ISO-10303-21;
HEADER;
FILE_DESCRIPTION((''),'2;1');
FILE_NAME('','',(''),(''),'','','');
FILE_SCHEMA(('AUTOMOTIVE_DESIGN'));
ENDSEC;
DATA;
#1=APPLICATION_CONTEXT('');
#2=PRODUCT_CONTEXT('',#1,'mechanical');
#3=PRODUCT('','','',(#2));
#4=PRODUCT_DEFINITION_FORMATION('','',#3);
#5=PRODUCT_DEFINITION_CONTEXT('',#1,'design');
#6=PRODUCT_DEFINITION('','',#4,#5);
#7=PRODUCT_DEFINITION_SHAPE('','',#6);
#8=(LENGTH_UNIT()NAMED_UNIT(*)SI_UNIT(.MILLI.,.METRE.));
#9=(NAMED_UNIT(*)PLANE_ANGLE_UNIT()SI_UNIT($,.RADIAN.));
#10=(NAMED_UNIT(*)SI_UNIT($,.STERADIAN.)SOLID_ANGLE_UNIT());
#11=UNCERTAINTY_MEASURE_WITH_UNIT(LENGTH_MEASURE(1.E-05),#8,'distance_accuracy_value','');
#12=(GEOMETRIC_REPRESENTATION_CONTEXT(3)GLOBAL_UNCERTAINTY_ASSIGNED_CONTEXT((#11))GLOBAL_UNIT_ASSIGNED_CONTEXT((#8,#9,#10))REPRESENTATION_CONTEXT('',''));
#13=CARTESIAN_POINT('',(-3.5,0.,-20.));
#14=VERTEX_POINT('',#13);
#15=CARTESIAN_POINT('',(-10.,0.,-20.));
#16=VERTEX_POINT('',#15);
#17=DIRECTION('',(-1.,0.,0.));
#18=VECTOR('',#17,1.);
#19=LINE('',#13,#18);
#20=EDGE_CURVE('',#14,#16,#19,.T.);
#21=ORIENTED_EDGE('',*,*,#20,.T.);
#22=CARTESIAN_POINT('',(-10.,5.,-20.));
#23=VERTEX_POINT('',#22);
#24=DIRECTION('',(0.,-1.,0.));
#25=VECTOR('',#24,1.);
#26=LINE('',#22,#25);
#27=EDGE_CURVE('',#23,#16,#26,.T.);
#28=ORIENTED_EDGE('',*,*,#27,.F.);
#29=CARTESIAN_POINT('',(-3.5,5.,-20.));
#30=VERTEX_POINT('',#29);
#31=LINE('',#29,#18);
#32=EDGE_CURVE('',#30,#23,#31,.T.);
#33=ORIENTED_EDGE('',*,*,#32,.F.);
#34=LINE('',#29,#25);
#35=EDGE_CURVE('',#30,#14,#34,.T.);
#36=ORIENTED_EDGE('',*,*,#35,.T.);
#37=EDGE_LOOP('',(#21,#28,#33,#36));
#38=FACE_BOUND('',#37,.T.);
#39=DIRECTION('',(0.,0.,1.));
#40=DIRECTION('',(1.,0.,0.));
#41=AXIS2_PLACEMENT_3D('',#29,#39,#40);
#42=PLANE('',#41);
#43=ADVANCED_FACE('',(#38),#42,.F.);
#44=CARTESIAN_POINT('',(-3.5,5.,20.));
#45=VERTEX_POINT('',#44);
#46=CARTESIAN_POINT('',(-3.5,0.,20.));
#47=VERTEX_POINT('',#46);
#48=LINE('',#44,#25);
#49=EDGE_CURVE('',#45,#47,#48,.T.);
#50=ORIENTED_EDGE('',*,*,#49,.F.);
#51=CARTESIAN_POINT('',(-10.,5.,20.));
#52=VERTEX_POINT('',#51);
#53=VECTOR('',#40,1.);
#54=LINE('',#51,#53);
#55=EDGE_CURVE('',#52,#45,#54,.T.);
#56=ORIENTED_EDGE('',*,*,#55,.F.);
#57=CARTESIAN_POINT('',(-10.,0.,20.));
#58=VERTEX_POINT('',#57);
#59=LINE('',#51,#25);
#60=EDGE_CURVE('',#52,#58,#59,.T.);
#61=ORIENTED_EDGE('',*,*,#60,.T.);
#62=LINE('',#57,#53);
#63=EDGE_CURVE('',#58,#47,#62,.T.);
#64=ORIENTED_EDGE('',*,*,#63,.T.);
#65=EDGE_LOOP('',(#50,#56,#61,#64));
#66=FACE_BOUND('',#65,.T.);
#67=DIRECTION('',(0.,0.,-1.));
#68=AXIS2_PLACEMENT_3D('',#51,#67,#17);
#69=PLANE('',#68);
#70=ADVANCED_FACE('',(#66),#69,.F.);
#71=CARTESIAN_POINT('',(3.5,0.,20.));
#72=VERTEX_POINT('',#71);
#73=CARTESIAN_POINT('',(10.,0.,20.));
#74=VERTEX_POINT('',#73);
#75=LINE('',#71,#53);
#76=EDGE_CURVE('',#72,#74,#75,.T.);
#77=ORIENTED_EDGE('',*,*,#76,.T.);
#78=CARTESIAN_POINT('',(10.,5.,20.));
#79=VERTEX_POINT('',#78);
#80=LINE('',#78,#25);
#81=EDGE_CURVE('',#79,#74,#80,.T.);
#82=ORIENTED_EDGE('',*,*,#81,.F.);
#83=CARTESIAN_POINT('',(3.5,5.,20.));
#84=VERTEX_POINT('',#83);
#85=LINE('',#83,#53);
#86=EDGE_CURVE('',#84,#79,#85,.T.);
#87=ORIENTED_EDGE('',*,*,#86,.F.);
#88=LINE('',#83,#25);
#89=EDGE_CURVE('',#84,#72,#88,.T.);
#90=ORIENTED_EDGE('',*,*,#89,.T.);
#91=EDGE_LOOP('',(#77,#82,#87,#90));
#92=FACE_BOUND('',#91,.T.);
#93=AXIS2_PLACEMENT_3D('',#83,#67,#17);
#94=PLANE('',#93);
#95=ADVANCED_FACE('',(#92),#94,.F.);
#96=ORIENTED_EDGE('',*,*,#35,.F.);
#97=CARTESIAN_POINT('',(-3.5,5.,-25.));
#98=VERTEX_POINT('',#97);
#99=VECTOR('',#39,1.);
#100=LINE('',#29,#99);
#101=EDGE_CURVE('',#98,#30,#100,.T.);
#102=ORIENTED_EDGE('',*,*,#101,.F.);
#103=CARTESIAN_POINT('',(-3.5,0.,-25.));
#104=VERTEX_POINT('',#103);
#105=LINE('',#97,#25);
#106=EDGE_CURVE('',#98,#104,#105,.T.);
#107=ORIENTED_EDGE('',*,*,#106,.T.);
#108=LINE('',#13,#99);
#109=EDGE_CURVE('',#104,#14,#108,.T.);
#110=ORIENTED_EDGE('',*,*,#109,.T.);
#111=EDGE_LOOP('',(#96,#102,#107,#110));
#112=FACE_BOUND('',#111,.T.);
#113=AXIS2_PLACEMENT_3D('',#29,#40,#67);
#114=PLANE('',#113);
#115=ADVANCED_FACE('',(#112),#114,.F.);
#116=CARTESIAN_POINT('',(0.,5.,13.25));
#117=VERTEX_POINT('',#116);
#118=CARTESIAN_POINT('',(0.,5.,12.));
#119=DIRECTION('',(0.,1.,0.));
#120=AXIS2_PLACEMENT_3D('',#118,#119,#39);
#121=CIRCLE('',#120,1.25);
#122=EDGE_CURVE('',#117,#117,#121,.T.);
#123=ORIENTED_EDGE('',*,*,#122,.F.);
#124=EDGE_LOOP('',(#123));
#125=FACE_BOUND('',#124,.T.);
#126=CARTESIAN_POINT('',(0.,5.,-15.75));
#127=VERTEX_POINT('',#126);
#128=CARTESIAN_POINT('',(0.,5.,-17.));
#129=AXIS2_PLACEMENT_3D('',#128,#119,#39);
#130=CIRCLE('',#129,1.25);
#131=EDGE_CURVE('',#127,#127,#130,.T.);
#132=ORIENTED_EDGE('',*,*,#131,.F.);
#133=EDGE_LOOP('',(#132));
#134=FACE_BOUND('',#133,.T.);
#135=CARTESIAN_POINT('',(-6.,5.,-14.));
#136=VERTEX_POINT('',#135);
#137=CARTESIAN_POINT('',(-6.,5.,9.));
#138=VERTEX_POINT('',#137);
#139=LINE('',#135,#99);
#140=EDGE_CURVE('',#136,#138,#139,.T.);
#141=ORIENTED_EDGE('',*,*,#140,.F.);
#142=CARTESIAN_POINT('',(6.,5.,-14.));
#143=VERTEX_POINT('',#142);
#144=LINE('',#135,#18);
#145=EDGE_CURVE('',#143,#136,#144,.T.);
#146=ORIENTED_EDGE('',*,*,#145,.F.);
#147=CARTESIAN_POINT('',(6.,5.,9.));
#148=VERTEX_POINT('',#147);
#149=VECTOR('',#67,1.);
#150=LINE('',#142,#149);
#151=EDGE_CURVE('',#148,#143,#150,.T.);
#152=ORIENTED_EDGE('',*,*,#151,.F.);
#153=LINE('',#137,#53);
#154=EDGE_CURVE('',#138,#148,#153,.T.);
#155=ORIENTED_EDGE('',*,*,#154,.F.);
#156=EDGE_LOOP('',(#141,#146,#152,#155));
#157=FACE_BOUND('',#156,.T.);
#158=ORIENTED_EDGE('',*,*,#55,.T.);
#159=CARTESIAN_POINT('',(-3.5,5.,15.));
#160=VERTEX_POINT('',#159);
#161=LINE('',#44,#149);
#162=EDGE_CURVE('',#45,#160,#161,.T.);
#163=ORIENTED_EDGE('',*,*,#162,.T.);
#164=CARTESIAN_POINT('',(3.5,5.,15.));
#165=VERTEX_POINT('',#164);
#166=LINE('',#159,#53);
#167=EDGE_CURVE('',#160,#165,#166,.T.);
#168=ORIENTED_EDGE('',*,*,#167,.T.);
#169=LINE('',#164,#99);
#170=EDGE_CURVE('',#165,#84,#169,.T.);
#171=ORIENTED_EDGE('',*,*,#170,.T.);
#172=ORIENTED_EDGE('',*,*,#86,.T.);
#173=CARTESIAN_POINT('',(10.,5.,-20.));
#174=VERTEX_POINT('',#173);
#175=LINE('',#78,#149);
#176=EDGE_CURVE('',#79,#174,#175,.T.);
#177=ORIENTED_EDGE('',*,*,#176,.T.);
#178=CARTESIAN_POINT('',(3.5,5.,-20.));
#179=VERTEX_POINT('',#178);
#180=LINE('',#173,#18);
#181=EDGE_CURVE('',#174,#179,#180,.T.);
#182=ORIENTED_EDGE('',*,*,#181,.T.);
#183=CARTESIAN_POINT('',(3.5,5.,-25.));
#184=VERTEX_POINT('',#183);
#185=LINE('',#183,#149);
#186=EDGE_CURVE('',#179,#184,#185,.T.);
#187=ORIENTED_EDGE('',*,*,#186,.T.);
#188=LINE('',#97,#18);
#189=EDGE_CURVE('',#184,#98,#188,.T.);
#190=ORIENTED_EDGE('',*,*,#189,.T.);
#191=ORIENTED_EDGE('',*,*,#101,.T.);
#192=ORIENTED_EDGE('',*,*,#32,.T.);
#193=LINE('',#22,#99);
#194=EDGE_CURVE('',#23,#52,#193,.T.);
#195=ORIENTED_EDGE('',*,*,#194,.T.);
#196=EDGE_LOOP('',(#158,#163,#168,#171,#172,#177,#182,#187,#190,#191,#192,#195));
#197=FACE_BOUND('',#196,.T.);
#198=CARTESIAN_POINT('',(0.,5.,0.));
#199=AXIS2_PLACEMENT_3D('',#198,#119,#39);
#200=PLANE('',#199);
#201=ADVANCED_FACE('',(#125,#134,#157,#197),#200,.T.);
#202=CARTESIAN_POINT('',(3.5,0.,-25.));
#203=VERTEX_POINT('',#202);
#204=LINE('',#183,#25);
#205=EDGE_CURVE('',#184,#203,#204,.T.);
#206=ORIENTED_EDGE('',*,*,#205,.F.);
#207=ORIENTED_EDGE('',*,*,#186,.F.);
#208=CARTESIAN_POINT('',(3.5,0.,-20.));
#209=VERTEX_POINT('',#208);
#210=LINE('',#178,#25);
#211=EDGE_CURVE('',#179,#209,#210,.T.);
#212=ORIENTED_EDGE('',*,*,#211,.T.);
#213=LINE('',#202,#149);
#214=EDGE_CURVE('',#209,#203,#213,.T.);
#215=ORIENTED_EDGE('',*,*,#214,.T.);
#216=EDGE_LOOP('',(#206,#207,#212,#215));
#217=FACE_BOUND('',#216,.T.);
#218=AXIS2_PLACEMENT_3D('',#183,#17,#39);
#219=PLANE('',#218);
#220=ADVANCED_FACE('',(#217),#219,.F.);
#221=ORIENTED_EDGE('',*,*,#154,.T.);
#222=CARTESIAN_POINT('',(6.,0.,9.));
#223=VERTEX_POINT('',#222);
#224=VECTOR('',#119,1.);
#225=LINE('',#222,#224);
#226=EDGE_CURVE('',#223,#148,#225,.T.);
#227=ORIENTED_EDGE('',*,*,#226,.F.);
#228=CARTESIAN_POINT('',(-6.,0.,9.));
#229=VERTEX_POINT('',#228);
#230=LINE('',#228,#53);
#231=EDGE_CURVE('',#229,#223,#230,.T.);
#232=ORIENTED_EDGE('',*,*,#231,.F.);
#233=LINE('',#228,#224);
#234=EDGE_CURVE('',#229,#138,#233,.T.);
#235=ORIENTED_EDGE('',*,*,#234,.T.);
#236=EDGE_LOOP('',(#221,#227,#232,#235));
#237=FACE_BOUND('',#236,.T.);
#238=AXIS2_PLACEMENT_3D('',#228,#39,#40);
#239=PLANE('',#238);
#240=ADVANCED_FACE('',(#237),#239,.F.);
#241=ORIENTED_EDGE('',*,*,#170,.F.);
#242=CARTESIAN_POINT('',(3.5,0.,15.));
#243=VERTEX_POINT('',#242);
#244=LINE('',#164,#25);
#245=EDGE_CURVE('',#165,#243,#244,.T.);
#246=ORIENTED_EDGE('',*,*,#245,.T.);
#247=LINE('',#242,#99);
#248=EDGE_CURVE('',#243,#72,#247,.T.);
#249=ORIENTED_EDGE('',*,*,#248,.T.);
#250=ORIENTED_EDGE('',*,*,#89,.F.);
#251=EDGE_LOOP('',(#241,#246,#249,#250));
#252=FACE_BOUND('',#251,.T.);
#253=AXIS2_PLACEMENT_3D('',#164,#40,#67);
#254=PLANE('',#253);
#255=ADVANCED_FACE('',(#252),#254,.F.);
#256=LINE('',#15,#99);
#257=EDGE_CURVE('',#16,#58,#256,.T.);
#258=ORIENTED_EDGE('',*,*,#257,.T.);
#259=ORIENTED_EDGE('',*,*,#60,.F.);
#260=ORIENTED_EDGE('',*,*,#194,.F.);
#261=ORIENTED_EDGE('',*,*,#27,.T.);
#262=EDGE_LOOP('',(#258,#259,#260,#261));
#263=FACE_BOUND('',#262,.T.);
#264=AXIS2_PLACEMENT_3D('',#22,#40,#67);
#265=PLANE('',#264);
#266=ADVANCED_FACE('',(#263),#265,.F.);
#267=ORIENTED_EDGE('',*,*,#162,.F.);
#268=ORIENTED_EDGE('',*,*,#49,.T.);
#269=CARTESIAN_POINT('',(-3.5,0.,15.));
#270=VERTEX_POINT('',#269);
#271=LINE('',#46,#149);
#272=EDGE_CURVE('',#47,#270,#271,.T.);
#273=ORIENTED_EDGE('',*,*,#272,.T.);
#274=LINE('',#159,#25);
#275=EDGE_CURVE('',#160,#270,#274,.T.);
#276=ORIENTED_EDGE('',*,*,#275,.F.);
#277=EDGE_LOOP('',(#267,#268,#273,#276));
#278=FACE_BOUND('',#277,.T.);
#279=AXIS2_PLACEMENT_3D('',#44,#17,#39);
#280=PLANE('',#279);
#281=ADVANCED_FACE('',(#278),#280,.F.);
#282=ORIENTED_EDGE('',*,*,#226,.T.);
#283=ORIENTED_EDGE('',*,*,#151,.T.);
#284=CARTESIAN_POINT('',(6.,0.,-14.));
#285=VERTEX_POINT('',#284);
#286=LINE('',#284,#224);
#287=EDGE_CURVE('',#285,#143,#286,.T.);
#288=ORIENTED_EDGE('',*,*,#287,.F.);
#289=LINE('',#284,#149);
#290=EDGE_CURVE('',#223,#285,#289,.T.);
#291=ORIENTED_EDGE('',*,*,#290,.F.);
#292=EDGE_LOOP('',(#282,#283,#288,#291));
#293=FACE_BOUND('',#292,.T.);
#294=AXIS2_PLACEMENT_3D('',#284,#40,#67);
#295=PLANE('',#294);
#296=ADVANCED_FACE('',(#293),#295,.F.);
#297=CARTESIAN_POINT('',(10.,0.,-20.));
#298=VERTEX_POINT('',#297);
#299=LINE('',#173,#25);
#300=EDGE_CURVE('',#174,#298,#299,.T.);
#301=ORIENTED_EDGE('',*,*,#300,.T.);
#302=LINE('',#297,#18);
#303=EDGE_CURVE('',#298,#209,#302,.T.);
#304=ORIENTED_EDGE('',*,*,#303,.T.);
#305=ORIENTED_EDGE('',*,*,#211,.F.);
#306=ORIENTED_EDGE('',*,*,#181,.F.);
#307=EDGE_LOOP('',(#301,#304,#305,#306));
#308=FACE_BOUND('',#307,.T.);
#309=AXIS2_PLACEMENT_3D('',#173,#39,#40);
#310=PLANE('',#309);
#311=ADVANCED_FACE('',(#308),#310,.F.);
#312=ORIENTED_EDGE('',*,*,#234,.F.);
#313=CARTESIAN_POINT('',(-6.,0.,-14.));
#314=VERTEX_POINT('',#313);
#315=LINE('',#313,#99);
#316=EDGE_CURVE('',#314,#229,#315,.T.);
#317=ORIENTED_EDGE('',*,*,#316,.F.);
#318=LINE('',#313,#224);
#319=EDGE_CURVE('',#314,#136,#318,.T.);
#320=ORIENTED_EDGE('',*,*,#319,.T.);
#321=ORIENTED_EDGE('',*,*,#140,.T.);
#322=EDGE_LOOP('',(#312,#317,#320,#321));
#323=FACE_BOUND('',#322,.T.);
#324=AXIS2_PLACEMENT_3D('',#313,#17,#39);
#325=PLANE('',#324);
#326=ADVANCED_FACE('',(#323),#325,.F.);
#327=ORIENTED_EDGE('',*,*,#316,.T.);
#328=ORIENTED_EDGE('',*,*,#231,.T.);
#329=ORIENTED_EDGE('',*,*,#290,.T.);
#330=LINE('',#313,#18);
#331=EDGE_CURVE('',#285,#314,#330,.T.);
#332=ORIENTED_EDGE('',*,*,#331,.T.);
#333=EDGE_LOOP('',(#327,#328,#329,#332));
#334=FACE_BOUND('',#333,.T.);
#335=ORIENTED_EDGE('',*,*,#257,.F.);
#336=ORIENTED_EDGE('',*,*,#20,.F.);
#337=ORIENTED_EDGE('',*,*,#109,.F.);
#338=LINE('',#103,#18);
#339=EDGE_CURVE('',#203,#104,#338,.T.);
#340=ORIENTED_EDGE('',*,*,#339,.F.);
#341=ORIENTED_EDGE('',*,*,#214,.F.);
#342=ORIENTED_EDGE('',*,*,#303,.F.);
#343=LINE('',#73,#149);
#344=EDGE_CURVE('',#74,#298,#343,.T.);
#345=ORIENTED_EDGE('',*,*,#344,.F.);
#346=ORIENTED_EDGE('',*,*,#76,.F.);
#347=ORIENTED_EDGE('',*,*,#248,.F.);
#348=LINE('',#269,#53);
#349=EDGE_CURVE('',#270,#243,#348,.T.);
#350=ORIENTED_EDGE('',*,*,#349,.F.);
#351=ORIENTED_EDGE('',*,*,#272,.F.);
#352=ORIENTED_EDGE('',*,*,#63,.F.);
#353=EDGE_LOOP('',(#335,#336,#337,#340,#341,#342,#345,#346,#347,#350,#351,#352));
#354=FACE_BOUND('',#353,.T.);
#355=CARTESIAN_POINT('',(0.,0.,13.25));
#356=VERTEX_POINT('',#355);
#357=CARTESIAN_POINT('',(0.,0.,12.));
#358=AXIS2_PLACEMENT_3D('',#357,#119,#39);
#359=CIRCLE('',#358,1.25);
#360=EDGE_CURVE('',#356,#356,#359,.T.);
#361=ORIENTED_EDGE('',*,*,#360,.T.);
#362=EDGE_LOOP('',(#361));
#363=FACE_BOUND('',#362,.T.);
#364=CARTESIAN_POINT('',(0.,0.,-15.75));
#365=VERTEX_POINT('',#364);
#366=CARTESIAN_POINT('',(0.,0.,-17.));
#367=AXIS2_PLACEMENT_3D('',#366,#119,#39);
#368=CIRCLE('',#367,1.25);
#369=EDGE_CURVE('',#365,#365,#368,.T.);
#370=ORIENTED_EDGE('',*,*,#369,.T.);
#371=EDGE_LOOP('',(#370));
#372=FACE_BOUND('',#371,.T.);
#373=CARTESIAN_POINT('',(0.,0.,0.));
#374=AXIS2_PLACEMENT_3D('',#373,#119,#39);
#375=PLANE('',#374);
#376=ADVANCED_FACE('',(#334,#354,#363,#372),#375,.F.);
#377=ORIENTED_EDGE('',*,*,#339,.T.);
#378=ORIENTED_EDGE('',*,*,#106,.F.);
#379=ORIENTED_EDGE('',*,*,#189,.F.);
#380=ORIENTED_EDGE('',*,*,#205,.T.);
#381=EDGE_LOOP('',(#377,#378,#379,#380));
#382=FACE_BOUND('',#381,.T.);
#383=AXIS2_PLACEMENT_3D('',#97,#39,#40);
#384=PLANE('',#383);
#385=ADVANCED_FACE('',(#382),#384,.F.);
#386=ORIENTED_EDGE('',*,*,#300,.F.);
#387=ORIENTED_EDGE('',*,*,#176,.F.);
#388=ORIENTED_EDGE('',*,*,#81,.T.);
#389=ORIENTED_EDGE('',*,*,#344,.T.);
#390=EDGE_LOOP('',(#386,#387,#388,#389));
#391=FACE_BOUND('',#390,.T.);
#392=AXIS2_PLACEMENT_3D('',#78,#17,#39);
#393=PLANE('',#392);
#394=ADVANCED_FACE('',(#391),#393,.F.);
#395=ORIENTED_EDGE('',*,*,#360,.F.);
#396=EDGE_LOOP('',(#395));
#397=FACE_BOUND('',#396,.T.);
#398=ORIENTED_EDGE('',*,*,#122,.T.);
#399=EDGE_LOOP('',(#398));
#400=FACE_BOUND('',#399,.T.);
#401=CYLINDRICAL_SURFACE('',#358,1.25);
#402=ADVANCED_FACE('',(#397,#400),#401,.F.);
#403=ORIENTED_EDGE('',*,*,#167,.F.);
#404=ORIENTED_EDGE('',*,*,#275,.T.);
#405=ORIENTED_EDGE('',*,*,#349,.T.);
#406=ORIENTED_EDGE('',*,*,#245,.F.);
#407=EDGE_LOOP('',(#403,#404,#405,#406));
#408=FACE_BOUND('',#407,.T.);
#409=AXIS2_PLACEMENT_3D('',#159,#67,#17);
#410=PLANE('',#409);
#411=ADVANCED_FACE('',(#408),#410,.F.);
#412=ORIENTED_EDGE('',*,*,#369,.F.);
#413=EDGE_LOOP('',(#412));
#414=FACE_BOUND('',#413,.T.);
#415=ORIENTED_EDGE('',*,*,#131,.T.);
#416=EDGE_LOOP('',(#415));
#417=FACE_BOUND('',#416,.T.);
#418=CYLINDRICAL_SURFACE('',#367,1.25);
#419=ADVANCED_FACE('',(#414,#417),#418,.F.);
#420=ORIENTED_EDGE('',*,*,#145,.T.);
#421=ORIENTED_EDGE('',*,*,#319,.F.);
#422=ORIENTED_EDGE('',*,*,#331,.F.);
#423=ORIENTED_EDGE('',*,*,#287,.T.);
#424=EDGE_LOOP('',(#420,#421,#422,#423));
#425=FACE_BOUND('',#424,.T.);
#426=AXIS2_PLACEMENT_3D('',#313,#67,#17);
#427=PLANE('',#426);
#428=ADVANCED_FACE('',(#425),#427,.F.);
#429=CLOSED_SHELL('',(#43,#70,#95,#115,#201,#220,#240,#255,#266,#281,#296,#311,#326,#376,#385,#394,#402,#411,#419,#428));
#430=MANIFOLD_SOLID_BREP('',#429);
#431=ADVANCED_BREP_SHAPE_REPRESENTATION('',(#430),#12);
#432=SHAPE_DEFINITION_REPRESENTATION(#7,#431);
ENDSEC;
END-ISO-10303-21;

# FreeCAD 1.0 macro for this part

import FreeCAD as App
import Part
import Sketcher
from FreeCAD import Vector
Q = App.Units.Quantity


def add_polygon(sketch, points):
    """Adds a closed chain of lines whose ends are joined by coincident constraints."""
    first, n = sketch.GeometryCount, len(points)
    for a, b in zip(points, points[1:] + points[:1]):
        sketch.addGeometry(Part.LineSegment(App.Vector(*a, 0), App.Vector(*b, 0)), False)
    for i in range(n):
        sketch.addConstraint(Sketcher.Constraint("Coincident", first + i, 2, first + (i + 1) % n, 1))

doc = App.newDocument("Part")
params = doc.addObject("Spreadsheet::Sheet", "Params")
for row, (alias, value) in enumerate([
    ("sketch1_width", "7 mm"),
    ("sketch1_height", "40 mm"),
    ("sketch1_height2", "5 mm"),
    ("sketch1_width2", "6.5 mm"),
    ("pad1_length", "5 mm"),
    ("sketch2_diameter", "2.5 mm"),
    ("sketch2_width", "12 mm"),
    ("sketch2_height", "23 mm"),
    ("pocket1_length", "5 mm"),
], start=1):
    params.set(f"A{row}", alias)
    params.set(f"B{row}", "=" + value)
    params.setAlias(f"B{row}", alias)

body = doc.addObject("PartDesign::Body", "Body")

# Sketch on XZ plane
sketch1 = body.newObject("Sketcher::SketchObject", "Sketch")
sketch1.AttachmentSupport = (doc.getObject("XZ_Plane"), [""])
sketch1.MapMode = "FlatFace"
add_polygon(sketch1, [(-10, -20), (-10, 20), (-3.5, 20), (-3.5, 15), (3.5, 15), (3.5, 20), (10, 20), (10, -20), (3.5, -20), (3.5, -25), (-3.5, -25), (-3.5, -20)])  # lines 0-11
sketch1.addConstraint(Sketcher.Constraint("Vertical", 0))
sketch1.addConstraint(Sketcher.Constraint("Horizontal", 1))
sketch1.addConstraint(Sketcher.Constraint("Vertical", 2))
sketch1.addConstraint(Sketcher.Constraint("Horizontal", 3))
sketch1.addConstraint(Sketcher.Constraint("Vertical", 4))
sketch1.addConstraint(Sketcher.Constraint("Horizontal", 5))
sketch1.addConstraint(Sketcher.Constraint("Vertical", 6))
sketch1.addConstraint(Sketcher.Constraint("Horizontal", 7))
sketch1.addConstraint(Sketcher.Constraint("Vertical", 8))
sketch1.addConstraint(Sketcher.Constraint("Horizontal", 9))
sketch1.addConstraint(Sketcher.Constraint("Vertical", 10))
sketch1.addConstraint(Sketcher.Constraint("Horizontal", 11))
sketch1.addConstraint(Sketcher.Constraint("Symmetric", 0, 2, 6, 2, -1, 1))
sketch1.addConstraint(Sketcher.Constraint("Symmetric", 4, 2, 10, 2, -1, 1))
sketch1.addConstraint(Sketcher.Constraint("Symmetric", 1, 2, 4, 2, -2))
sketch1.addConstraint(Sketcher.Constraint("Vertical", 4, 2, 7, 2))
sketch1.addConstraint(Sketcher.Constraint("Equal", 4, 8))
sketch1.addConstraint(Sketcher.Constraint("DistanceX", 3, 1, 3, 2, Q("7 mm")))
sketch1.addConstraint(Sketcher.Constraint("DistanceY", 0, 1, 0, 2, Q("40 mm")))
sketch1.addConstraint(Sketcher.Constraint("DistanceY", 2, 2, 2, 1, Q("5 mm")))
sketch1.addConstraint(Sketcher.Constraint("DistanceX", 1, 1, 1, 2, Q("6.5 mm")))
sketch1.setExpression("Constraints[29]", "Params.sketch1_width")
sketch1.setExpression("Constraints[30]", "Params.sketch1_height")
sketch1.setExpression("Constraints[31]", "Params.sketch1_height2")
sketch1.setExpression("Constraints[32]", "Params.sketch1_width2")
pad1 = body.newObject("PartDesign::Pad", "Pad")
pad1.Profile = sketch1
pad1.setExpression("Length", "Params.pad1_length")
pad1.Reversed = True

# Sketch on XZ plane
sketch2 = body.newObject("Sketcher::SketchObject", "Sketch001")
sketch2.AttachmentSupport = (doc.getObject("XZ_Plane"), [""])
sketch2.MapMode = "FlatFace"
sketch2.AttachmentOffset = App.Placement(Vector(0, 0, -5), App.Rotation())
sketch2.addGeometry(Part.Circle(Vector(0, -17, 0), Vector(0, 0, 1), 1.25), False)  # 0
sketch2.addGeometry(Part.Circle(Vector(0, 12, 0), Vector(0, 0, 1), 1.25), False)  # 1
add_polygon(sketch2, [(-6, -14), (-6, 9), (6, 9), (6, -14)])  # lines 2-5
sketch2.addConstraint(Sketcher.Constraint("Vertical", 2))
sketch2.addConstraint(Sketcher.Constraint("Horizontal", 3))
sketch2.addConstraint(Sketcher.Constraint("Vertical", 4))
sketch2.addConstraint(Sketcher.Constraint("Horizontal", 5))
sketch2.addConstraint(Sketcher.Constraint("Equal", 0, 1))
sketch2.addConstraint(Sketcher.Constraint("PointOnObject", 0, 3, -2))
sketch2.addConstraint(Sketcher.Constraint("PointOnObject", 1, 3, -2))
sketch2.addConstraint(Sketcher.Constraint("Diameter", 0, Q("2.5 mm")))
sketch2.addConstraint(Sketcher.Constraint("DistanceX", 3, 1, 3, 2, Q("12 mm")))
sketch2.addConstraint(Sketcher.Constraint("DistanceY", 2, 1, 2, 2, Q("23 mm")))
sketch2.addConstraint(Sketcher.Constraint("DistanceY", 0, 3, -1, 1, Q("17 mm")))
sketch2.addConstraint(Sketcher.Constraint("DistanceY", -1, 1, 1, 3, Q("12 mm")))
sketch2.addConstraint(Sketcher.Constraint("DistanceX", 2, 2, -1, 1, Q("6 mm")))
sketch2.addConstraint(Sketcher.Constraint("DistanceY", -1, 1, 2, 2, Q("9 mm")))
sketch2.setExpression("Constraints[11]", "Params.sketch2_diameter")
sketch2.setExpression("Constraints[12]", "Params.sketch2_width")
sketch2.setExpression("Constraints[13]", "Params.sketch2_height")
pocket1 = body.newObject("PartDesign::Pocket", "Pocket")
pocket1.Profile = sketch2
pocket1.setExpression("Length", "Params.pocket1_length")
pocket1.Reversed = True

doc.recompute()
